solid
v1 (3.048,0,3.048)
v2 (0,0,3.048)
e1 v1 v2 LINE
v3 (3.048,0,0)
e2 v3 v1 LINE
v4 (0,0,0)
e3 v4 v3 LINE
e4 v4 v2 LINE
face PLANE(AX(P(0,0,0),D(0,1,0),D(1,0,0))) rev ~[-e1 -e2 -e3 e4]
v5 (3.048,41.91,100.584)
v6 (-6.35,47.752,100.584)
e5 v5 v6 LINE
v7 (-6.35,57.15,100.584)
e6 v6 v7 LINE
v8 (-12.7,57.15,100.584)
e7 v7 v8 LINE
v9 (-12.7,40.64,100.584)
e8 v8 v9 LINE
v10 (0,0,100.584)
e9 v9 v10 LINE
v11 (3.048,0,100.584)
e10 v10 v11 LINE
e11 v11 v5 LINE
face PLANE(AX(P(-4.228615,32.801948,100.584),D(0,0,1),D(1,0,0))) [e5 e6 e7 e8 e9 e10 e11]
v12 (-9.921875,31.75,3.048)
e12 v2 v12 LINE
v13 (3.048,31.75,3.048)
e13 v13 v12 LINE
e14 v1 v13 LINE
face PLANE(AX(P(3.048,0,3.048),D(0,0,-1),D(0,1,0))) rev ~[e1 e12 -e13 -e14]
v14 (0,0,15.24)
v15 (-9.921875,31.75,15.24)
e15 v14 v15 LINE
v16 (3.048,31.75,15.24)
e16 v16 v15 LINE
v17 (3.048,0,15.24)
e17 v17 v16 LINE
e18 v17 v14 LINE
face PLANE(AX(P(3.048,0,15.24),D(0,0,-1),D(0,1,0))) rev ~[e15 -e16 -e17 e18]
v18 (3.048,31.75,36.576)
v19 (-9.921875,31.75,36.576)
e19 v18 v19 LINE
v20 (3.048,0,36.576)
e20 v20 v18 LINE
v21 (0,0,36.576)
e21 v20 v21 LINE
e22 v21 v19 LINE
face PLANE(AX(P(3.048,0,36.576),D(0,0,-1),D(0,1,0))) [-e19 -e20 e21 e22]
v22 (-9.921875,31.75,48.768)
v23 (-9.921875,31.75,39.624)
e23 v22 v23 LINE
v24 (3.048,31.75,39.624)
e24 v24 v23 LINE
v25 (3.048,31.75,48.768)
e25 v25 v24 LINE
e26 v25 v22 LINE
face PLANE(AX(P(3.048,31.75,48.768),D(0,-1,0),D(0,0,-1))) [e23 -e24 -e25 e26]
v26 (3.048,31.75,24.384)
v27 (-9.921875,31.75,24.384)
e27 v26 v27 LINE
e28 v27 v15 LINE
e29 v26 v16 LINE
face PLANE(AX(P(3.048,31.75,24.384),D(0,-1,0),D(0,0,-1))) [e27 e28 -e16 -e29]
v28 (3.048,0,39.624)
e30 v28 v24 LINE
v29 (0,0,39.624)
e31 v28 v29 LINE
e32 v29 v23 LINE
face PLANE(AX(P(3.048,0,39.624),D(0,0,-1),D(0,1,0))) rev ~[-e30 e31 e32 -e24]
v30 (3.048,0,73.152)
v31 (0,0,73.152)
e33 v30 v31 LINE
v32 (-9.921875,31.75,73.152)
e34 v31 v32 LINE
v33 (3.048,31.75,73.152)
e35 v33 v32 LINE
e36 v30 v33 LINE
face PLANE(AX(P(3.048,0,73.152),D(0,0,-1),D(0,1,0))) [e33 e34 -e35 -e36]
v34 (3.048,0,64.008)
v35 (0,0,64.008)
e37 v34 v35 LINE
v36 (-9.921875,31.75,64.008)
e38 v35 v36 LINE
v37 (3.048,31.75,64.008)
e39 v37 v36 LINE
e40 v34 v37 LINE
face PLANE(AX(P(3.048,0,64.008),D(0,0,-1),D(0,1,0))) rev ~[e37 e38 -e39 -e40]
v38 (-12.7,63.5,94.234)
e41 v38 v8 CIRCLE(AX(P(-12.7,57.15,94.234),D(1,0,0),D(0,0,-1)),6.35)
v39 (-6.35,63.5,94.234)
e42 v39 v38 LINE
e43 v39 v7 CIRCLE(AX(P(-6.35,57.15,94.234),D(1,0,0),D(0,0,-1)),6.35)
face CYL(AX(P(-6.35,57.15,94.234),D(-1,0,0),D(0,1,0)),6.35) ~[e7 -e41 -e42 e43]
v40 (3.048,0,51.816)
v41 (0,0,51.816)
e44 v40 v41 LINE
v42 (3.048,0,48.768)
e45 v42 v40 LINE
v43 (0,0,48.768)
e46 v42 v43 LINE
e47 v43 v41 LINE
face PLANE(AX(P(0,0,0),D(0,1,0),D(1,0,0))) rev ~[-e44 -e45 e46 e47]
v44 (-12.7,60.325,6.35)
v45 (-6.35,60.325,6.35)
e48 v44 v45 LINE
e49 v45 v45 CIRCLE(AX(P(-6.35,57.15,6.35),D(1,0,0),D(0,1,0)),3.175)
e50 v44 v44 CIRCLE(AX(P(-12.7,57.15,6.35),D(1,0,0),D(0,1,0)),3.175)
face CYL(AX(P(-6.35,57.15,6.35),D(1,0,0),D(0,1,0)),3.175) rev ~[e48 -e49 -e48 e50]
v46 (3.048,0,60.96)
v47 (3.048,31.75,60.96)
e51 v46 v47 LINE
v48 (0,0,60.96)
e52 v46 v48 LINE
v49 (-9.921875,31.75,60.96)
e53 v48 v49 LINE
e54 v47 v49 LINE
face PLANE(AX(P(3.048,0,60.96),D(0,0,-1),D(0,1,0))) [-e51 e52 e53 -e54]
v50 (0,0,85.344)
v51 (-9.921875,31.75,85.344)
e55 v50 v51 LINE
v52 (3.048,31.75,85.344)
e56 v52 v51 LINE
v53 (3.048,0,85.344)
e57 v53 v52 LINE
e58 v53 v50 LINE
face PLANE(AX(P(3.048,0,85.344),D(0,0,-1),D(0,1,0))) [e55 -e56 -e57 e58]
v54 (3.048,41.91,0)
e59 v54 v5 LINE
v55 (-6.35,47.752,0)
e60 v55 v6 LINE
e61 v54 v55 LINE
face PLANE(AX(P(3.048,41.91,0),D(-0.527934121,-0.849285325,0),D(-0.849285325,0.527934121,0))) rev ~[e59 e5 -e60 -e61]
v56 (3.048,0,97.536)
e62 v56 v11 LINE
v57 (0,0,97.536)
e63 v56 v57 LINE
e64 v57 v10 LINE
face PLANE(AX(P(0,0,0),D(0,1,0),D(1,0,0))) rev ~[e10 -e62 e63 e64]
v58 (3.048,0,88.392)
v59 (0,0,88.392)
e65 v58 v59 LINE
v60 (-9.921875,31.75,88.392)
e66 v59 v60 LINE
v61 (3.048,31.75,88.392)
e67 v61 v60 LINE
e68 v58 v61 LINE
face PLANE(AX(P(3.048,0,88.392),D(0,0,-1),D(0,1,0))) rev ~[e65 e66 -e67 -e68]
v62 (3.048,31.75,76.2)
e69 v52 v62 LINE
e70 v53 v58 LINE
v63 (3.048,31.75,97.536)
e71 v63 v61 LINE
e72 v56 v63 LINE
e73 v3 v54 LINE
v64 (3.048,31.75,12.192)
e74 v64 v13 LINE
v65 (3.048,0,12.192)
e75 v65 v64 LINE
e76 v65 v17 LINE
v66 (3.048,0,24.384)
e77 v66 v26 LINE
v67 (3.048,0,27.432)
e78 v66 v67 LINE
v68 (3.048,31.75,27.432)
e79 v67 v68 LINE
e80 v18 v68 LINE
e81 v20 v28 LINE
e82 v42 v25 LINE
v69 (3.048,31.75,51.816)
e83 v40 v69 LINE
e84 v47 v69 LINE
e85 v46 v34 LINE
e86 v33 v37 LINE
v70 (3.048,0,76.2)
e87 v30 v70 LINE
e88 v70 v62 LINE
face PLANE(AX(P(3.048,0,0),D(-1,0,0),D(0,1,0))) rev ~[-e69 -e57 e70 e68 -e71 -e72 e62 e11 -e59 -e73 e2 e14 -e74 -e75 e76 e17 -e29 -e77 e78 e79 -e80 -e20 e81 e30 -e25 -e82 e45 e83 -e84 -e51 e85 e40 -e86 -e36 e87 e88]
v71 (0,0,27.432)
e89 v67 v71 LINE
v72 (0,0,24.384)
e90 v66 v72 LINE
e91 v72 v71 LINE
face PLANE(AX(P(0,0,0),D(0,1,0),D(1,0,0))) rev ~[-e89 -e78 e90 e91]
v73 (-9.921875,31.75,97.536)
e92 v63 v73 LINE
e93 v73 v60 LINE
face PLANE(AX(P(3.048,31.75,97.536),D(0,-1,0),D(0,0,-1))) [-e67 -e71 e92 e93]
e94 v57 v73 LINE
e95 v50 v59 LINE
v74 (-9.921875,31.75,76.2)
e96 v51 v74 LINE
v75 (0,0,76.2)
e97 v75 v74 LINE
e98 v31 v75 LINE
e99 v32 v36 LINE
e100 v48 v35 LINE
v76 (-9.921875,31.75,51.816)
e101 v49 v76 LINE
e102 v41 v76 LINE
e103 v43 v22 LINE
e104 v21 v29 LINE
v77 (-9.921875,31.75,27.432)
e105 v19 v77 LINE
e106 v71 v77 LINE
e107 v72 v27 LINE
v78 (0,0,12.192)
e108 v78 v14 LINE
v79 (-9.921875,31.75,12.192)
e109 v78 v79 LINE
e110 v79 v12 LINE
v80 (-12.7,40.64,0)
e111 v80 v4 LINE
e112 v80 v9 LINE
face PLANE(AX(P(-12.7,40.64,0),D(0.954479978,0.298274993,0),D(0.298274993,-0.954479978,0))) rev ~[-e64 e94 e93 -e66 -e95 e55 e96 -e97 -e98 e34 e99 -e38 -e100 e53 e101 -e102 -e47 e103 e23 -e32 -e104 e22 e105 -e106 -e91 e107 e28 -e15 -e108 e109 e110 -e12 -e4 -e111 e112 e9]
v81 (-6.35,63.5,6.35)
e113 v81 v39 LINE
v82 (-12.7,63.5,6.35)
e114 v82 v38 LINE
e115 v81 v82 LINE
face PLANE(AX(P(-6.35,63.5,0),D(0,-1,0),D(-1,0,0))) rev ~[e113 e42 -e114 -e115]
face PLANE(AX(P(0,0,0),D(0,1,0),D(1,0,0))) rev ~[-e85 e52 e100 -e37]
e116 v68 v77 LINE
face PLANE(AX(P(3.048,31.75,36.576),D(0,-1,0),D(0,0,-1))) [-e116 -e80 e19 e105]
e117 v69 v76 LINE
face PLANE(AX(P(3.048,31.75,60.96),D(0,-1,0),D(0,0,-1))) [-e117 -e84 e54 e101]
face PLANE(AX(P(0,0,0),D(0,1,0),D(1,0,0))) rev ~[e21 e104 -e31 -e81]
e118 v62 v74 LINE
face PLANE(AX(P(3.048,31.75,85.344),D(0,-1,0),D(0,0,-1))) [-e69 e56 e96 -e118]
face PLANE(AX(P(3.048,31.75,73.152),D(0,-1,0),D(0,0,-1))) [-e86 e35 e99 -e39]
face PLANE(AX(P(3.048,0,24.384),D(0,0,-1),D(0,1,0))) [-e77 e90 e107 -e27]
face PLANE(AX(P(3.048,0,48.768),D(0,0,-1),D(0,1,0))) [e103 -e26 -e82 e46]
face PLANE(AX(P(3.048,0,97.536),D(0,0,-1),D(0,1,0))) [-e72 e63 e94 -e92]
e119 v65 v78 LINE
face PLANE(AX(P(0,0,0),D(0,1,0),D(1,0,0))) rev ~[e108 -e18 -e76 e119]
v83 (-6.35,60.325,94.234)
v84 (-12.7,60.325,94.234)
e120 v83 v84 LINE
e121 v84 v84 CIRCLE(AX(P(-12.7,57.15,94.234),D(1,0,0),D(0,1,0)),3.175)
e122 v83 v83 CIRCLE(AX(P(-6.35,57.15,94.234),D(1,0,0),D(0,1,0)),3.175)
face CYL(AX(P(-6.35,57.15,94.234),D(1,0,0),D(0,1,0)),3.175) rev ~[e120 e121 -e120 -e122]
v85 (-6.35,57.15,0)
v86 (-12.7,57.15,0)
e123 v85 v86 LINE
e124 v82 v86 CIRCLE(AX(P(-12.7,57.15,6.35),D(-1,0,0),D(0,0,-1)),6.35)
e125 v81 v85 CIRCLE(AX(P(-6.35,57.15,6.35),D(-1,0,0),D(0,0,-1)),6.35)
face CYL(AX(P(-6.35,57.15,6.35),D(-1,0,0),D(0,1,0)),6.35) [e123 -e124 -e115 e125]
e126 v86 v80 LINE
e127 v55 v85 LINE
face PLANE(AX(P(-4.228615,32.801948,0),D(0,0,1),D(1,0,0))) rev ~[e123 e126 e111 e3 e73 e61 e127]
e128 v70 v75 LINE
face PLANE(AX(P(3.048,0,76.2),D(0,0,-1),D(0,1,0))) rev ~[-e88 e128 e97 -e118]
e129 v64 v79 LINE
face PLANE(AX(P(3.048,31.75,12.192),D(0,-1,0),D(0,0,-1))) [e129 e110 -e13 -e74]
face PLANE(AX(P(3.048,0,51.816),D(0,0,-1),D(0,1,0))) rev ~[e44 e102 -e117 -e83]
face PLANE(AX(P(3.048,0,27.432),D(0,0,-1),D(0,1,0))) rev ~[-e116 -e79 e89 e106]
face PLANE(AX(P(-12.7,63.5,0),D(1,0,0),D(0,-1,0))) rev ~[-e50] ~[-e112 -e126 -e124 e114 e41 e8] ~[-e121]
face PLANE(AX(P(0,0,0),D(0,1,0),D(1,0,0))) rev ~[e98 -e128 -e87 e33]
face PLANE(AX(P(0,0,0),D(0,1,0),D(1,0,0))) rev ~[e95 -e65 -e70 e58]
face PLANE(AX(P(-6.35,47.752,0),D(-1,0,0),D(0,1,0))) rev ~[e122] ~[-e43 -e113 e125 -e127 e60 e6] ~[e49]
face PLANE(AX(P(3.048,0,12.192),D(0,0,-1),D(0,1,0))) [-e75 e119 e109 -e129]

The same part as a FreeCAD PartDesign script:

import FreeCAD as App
import Part
import Sketcher
Q = App.Units.Quantity


def edges_at(feature, points):
    """Names of the edges that pass closest to the given points."""
    edges = feature.Shape.Edges
    near = lambda p: min(range(len(edges)), key=lambda i: edges[i].distToShape(Part.Vertex(*p))[0])
    return sorted({f"Edge{near(p) + 1}" for p in points})


def add_polygon(sketch, points):
    """Adds a closed chain of lines whose ends are joined by coincident constraints."""
    first, n = sketch.GeometryCount, len(points)
    for a, b in zip(points, points[1:] + points[:1]):
        sketch.addGeometry(Part.LineSegment(App.Vector(*a, 0), App.Vector(*b, 0)), False)
    for i in range(n):
        sketch.addConstraint(Sketcher.Constraint("Coincident", first + i, 2, first + (i + 1) % n, 1))

doc = App.newDocument("Part")
params = doc.addObject("Spreadsheet::Sheet", "Params")
for row, (alias, value) in enumerate([
    ("sketch1_height", "0.9 in"),
    ("sketch1_width", "0.12 in"),
    ("sketch1_width2", "0.25 in"),
    ("sketch1_height2", "1.65 in"),
    ("sketch1_height3", "0.62 in"),
    ("pad1_length", "3.96 in"),
    ("fillet_radius", "0.25 in"),
    ("sketch2_diameter", "0.25 in"),
    ("pocket1_length", "4.96 in"),
    ("sketch3_width", "1.25 in"),
    ("sketch3_height", "0.36 in"),
], start=1):
    params.set(f"A{row}", alias)
    params.set(f"B{row}", "=" + value)
    params.setAlias(f"B{row}", alias)

body = doc.addObject("PartDesign::Body", "Body")

sketch1 = body.newObject("Sketcher::SketchObject", "Sketch")
sketch1.AttachmentSupport = (doc.getObject("XY_Plane"), [""])
sketch1.MapMode = "FlatFace"
add_polygon(sketch1, [(0, 0), (3, 0), (3, 41.9), (-6.3, 47.8), (-6.3, 63.5), (-12.7, 63.5), (-12.7, 40.6)])
sketch1.addConstraint([
    Sketcher.Constraint("Horizontal", 0),
    Sketcher.Constraint("Vertical", 1),
    Sketcher.Constraint("Vertical", 3),
    Sketcher.Constraint("Horizontal", 4),
    Sketcher.Constraint("Vertical", 5),
    Sketcher.Constraint("Coincident", 6, 2, -1, 1),
    Sketcher.Constraint("DistanceY", 5, 2, 5, 1, Q("0.9 in")),
    Sketcher.Constraint("DistanceX", 0, 1, 0, 2, Q("0.12 in")),
    Sketcher.Constraint("DistanceX", 4, 2, 4, 1, Q("0.25 in")),
    Sketcher.Constraint("DistanceY", 1, 1, 1, 2, Q("1.65 in")),
    Sketcher.Constraint("DistanceY", 3, 1, 3, 2, Q("0.62 in")),
    Sketcher.Constraint("DistanceY", -1, 1, 3, 2, Q("2.5 in")),
    Sketcher.Constraint("DistanceX", 4, 2, -1, 1, Q("0.5 in")),
])
sketch1.setExpression("Constraints[13]", "Params.sketch1_height")
sketch1.setExpression("Constraints[14]", "Params.sketch1_width")
sketch1.setExpression("Constraints[15]", "Params.sketch1_width2")
sketch1.setExpression("Constraints[16]", "Params.sketch1_height2")
sketch1.setExpression("Constraints[17]", "Params.sketch1_height3")
pad1 = body.newObject("PartDesign::Pad", "Pad")
pad1.Profile = sketch1
pad1.setExpression("Length", "Params.pad1_length")
doc.recompute()

fillet = body.newObject("PartDesign::Fillet", "Fillet")
fillet.Base = (pad1, edges_at(pad1, [(-9.525, 63.5, 100.584), (-9.525, 63.5, 0)]))
fillet.setExpression("Radius", "Params.fillet_radius")

sketch2 = body.newObject("Sketcher::SketchObject", "Sketch001")
sketch2.AttachmentSupport = (doc.getObject("YZ_Plane"), [""])
sketch2.MapMode = "FlatFace"
sketch2.AttachmentOffset = App.Placement(App.Vector(0, 0, -0.25 * 25.4), App.Rotation())
sketch2.addGeometry([
    Part.Circle(App.Vector(57.1, 94.2, 0), App.Vector(0, 0, 1), 3.2),
    Part.Circle(App.Vector(57.1, 6.3, 0), App.Vector(0, 0, 1), 3.2),
], False)
sketch2.addConstraint([
    Sketcher.Constraint("Equal", 0, 1),
    Sketcher.Constraint("Vertical", 0, 3, 1, 3),
    Sketcher.Constraint("Diameter", 0, Q("0.25 in")),
    Sketcher.Constraint("DistanceX", -1, 1, 0, 3, Q("2.25 in")),
    Sketcher.Constraint("DistanceY", -1, 1, 0, 3, Q("3.71 in")),
    Sketcher.Constraint("DistanceY", -1, 1, 1, 3, Q("0.25 in")),
])
sketch2.setExpression("Constraints[2]", "Params.sketch2_diameter")
pocket1 = body.newObject("PartDesign::Pocket", "Pocket")
pocket1.Profile = sketch2
pocket1.setExpression("Length", "Params.pocket1_length")
pocket1.Midplane = True

sketch3 = body.newObject("Sketcher::SketchObject", "Sketch002")
sketch3.AttachmentSupport = (doc.getObject("YZ_Plane"), [""])
sketch3.MapMode = "FlatFace"
sketch3.AttachmentOffset = App.Placement(App.Vector(0, 0, 0.12 * 25.4), App.Rotation())
add_polygon(sketch3, [(32, 98), (0, 98), (0, 88), (32, 88)])
add_polygon(sketch3, [(32, 85), (0, 85), (0, 76), (32, 76)])
add_polygon(sketch3, [(32, 73), (0, 73), (0, 64), (32, 64)])
add_polygon(sketch3, [(32, 61), (0, 61), (0, 52), (32, 52)])
add_polygon(sketch3, [(32, 49), (0, 49), (0, 40), (32, 40)])
add_polygon(sketch3, [(32, 37), (0, 37), (0, 27), (32, 27)])
add_polygon(sketch3, [(32, 24), (0, 24), (0, 15), (32, 15)])
add_polygon(sketch3, [(32, 12), (0, 12), (0, 3), (32, 3)])
sketch3.addConstraint([
    Sketcher.Constraint("Horizontal", 0),
    Sketcher.Constraint("Vertical", 1),
    Sketcher.Constraint("Horizontal", 2),
    Sketcher.Constraint("Vertical", 3),
    Sketcher.Constraint("Horizontal", 4),
    Sketcher.Constraint("Vertical", 5),
    Sketcher.Constraint("Horizontal", 6),
    Sketcher.Constraint("Vertical", 7),
    Sketcher.Constraint("Horizontal", 8),
    Sketcher.Constraint("Vertical", 9),
    Sketcher.Constraint("Horizontal", 10),
    Sketcher.Constraint("Vertical", 11),
    Sketcher.Constraint("Horizontal", 12),
    Sketcher.Constraint("Vertical", 13),
    Sketcher.Constraint("Horizontal", 14),
    Sketcher.Constraint("Vertical", 15),
    Sketcher.Constraint("Horizontal", 16),
    Sketcher.Constraint("Vertical", 17),
    Sketcher.Constraint("Horizontal", 18),
    Sketcher.Constraint("Vertical", 19),
    Sketcher.Constraint("Horizontal", 20),
    Sketcher.Constraint("Vertical", 21),
    Sketcher.Constraint("Horizontal", 22),
    Sketcher.Constraint("Vertical", 23),
    Sketcher.Constraint("Horizontal", 24),
    Sketcher.Constraint("Vertical", 25),
    Sketcher.Constraint("Horizontal", 26),
    Sketcher.Constraint("Vertical", 27),
    Sketcher.Constraint("Horizontal", 28),
    Sketcher.Constraint("Vertical", 29),
    Sketcher.Constraint("Horizontal", 30),
    Sketcher.Constraint("Vertical", 31),
    Sketcher.Constraint("PointOnObject", 0, 2, -2),
    Sketcher.Constraint("PointOnObject", 4, 2, -2),
    Sketcher.Constraint("PointOnObject", 8, 2, -2),
    Sketcher.Constraint("PointOnObject", 12, 2, -2),
    Sketcher.Constraint("PointOnObject", 16, 2, -2),
    Sketcher.Constraint("PointOnObject", 20, 2, -2),
    Sketcher.Constraint("PointOnObject", 24, 2, -2),
    Sketcher.Constraint("PointOnObject", 28, 2, -2),
    Sketcher.Constraint("Vertical", 3, 2, 6, 2),
    Sketcher.Constraint("Vertical", 7, 2, 10, 2),
    Sketcher.Constraint("Vertical", 11, 2, 14, 2),
    Sketcher.Constraint("Vertical", 15, 2, 18, 2),
    Sketcher.Constraint("Vertical", 19, 2, 22, 2),
    Sketcher.Constraint("Vertical", 23, 2, 26, 2),
    Sketcher.Constraint("Vertical", 27, 2, 30, 2),
    Sketcher.Constraint("Equal", 3, 5),
    Sketcher.Constraint("Equal", 7, 9),
    Sketcher.Constraint("Equal", 11, 13),
    Sketcher.Constraint("Equal", 15, 17),
    Sketcher.Constraint("Equal", 19, 21),
    Sketcher.Constraint("Equal", 23, 25),
    Sketcher.Constraint("Equal", 27, 29),
    Sketcher.Constraint("DistanceY", -1, 1, 5, 2, Q("3 in")),
    Sketcher.Constraint("DistanceX", 0, 2, 0, 1, Q("1.25 in")),
    Sketcher.Constraint("DistanceY", 1, 2, 1, 1, Q("0.36 in")),
    Sketcher.Constraint("DistanceY", -1, 1, 12, 2, Q("2.4 in")),
    Sketcher.Constraint("DistanceY", -1, 1, 25, 2, Q("0.6 in")),
    Sketcher.Constraint("DistanceY", 8, 2, 1, 2, Q("0.6 in")),
    Sketcher.Constraint("DistanceY", 16, 2, 9, 2, Q("0.6 in")),
    Sketcher.Constraint("DistanceY", 20, 2, 13, 2, Q("0.6 in")),
    Sketcher.Constraint("DistanceY", 24, 2, 17, 2, Q("0.6 in")),
    Sketcher.Constraint("DistanceY", 28, 2, 21, 2, Q("0.6 in")),
])
sketch3.setExpression("Constraints[87]", "Params.sketch3_width")
sketch3.setExpression("Constraints[88]", "Params.sketch3_height")
pocket2 = body.newObject("PartDesign::Pocket", "Pocket001")
pocket2.Profile = sketch3
pocket2.Type = "ThroughAll"

doc.recompute()
